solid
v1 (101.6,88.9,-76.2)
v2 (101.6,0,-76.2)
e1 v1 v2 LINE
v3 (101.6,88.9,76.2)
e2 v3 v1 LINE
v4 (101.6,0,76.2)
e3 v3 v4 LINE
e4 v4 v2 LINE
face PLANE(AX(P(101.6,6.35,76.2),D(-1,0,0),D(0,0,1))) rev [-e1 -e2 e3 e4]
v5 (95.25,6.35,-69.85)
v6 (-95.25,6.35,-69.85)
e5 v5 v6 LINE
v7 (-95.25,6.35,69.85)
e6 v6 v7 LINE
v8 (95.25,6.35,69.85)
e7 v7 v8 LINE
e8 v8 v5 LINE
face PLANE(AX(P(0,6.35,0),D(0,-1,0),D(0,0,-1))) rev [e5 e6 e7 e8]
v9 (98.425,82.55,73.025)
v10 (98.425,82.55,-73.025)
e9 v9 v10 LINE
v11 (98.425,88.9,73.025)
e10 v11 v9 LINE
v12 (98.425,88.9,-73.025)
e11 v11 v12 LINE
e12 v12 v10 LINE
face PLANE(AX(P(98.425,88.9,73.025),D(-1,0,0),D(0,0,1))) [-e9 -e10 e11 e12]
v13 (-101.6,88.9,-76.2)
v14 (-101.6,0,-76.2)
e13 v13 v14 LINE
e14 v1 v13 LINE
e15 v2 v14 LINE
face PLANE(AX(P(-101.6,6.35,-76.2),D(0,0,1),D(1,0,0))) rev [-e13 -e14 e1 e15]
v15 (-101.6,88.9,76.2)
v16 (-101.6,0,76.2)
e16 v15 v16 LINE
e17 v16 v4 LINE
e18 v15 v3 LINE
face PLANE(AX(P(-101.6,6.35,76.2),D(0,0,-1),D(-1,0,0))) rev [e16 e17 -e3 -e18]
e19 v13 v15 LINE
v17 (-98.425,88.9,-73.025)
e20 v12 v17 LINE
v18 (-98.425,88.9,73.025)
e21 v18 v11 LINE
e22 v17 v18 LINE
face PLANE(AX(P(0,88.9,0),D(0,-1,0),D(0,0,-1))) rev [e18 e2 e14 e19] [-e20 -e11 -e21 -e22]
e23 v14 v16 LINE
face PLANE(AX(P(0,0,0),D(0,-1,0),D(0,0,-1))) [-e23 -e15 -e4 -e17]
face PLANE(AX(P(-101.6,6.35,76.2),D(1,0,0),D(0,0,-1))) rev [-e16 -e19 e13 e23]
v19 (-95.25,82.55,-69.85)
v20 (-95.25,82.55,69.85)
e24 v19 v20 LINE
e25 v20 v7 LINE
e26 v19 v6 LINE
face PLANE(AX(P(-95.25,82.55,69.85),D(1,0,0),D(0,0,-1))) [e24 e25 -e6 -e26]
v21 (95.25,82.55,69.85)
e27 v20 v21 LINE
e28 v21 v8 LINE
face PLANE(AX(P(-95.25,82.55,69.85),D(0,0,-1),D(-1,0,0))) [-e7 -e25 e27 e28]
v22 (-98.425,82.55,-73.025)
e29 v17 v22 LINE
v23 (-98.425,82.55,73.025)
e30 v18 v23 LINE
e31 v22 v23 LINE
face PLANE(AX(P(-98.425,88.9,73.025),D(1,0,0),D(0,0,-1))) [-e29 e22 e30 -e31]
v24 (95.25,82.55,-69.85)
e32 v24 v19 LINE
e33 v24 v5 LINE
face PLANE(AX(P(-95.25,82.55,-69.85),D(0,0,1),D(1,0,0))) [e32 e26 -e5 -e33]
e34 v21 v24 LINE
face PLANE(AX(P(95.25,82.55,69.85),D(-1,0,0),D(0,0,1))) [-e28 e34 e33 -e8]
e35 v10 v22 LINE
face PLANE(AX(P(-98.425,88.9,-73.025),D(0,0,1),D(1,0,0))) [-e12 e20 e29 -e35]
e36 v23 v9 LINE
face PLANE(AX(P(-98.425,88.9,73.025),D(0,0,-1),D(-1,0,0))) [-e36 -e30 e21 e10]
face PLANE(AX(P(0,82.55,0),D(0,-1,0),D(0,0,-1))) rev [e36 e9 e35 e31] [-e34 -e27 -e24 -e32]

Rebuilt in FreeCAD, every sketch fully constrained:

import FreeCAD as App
import Part
import Sketcher

V = App.Vector
Q = App.Units.Quantity


def add_polygon(sketch, points):
    """Adds a closed chain of lines whose ends are joined by coincident constraints."""
    first, n = sketch.GeometryCount, len(points)
    for a, b in zip(points, points[1:] + points[:1]):
        sketch.addGeometry(Part.LineSegment(App.Vector(*a, 0), App.Vector(*b, 0)), False)
    for i in range(n):
        sketch.addConstraint(Sketcher.Constraint("Coincident", first + i, 2, first + (i + 1) % n, 1))

doc = App.newDocument("Part")
body = doc.addObject("PartDesign::Body", "Body")

sketch1 = body.newObject("Sketcher::SketchObject", "Sketch")
sketch1.AttachmentSupport = (doc.getObject("XZ_Plane"), [""])
sketch1.MapMode = "FlatFace"
add_polygon(sketch1, [(-102, -76), (-102, 76), (102, 76), (102, -76)])
sketch1.addConstraint([
    Sketcher.Constraint("Vertical", 0),
    Sketcher.Constraint("Horizontal", 1),
    Sketcher.Constraint("Vertical", 2),
    Sketcher.Constraint("Horizontal", 3),
    Sketcher.Constraint("Symmetric", 0, 2, 2, 2, -1, 1),
    Sketcher.Constraint("DistanceX", 1, 1, 1, 2, Q("8 in")),
    Sketcher.Constraint("DistanceY", 0, 1, 0, 2, Q("6 in")),
])
pad1 = body.newObject("PartDesign::Pad", "Pad")
pad1.Profile = sketch1
pad1.Length = Q("0.25 in")
pad1.Reversed = True

sketch2 = body.newObject("Sketcher::SketchObject", "Sketch001")
sketch2.AttachmentSupport = (doc.getObject("XZ_Plane"), [""])
sketch2.MapMode = "FlatFace"
sketch2.AttachmentOffset = App.Placement(V(0, 0, -0.25 * 25.4), App.Rotation())
add_polygon(sketch2, [(-102, -76), (-102, 76), (102, 76), (102, -76)])
add_polygon(sketch2, [(95, 70), (-95, 70), (-95, -70), (95, -70)])
sketch2.addConstraint([
    Sketcher.Constraint("Vertical", 0),
    Sketcher.Constraint("Horizontal", 1),
    Sketcher.Constraint("Vertical", 2),
    Sketcher.Constraint("Horizontal", 3),
    Sketcher.Constraint("Horizontal", 4),
    Sketcher.Constraint("Vertical", 5),
    Sketcher.Constraint("Horizontal", 6),
    Sketcher.Constraint("Vertical", 7),
    Sketcher.Constraint("Symmetric", 0, 2, 2, 2, -1, 1),
    Sketcher.Constraint("Symmetric", 4, 2, 6, 2, -1, 1),
    Sketcher.Constraint("DistanceX", 1, 1, 1, 2, Q("8 in")),
    Sketcher.Constraint("DistanceY", 0, 1, 0, 2, Q("6 in")),
    Sketcher.Constraint("DistanceX", 4, 2, 4, 1, Q("7.5 in")),
    Sketcher.Constraint("DistanceY", 5, 2, 5, 1, Q("5.5 in")),
])
pad2 = body.newObject("PartDesign::Pad", "Pad001")
pad2.Profile = sketch2
pad2.Length = Q("3 in")
pad2.Reversed = True

sketch3 = body.newObject("Sketcher::SketchObject", "Sketch002")
sketch3.AttachmentSupport = (doc.getObject("XZ_Plane"), [""])
sketch3.MapMode = "FlatFace"
sketch3.AttachmentOffset = App.Placement(V(0, 0, -3.25 * 25.4), App.Rotation())
add_polygon(sketch3, [(-102, -76), (-102, 76), (102, 76), (102, -76)])
add_polygon(sketch3, [(98, 73), (-98, 73), (-98, -73), (98, -73)])
sketch3.addConstraint([
    Sketcher.Constraint("Vertical", 0),
    Sketcher.Constraint("Horizontal", 1),
    Sketcher.Constraint("Vertical", 2),
    Sketcher.Constraint("Horizontal", 3),
    Sketcher.Constraint("Horizontal", 4),
    Sketcher.Constraint("Vertical", 5),
    Sketcher.Constraint("Horizontal", 6),
    Sketcher.Constraint("Vertical", 7),
    Sketcher.Constraint("Symmetric", 0, 2, 2, 2, -1, 1),
    Sketcher.Constraint("Symmetric", 4, 2, 6, 2, -1, 1),
    Sketcher.Constraint("DistanceX", 1, 1, 1, 2, Q("8 in")),
    Sketcher.Constraint("DistanceY", 0, 1, 0, 2, Q("6 in")),
    Sketcher.Constraint("DistanceX", 4, 2, 4, 1, Q("7.75 in")),
    Sketcher.Constraint("DistanceY", 5, 2, 5, 1, Q("5.75 in")),
])
pad3 = body.newObject("PartDesign::Pad", "Pad002")
pad3.Profile = sketch3
pad3.Length = Q("0.25 in")
pad3.Reversed = True

doc.recompute()
